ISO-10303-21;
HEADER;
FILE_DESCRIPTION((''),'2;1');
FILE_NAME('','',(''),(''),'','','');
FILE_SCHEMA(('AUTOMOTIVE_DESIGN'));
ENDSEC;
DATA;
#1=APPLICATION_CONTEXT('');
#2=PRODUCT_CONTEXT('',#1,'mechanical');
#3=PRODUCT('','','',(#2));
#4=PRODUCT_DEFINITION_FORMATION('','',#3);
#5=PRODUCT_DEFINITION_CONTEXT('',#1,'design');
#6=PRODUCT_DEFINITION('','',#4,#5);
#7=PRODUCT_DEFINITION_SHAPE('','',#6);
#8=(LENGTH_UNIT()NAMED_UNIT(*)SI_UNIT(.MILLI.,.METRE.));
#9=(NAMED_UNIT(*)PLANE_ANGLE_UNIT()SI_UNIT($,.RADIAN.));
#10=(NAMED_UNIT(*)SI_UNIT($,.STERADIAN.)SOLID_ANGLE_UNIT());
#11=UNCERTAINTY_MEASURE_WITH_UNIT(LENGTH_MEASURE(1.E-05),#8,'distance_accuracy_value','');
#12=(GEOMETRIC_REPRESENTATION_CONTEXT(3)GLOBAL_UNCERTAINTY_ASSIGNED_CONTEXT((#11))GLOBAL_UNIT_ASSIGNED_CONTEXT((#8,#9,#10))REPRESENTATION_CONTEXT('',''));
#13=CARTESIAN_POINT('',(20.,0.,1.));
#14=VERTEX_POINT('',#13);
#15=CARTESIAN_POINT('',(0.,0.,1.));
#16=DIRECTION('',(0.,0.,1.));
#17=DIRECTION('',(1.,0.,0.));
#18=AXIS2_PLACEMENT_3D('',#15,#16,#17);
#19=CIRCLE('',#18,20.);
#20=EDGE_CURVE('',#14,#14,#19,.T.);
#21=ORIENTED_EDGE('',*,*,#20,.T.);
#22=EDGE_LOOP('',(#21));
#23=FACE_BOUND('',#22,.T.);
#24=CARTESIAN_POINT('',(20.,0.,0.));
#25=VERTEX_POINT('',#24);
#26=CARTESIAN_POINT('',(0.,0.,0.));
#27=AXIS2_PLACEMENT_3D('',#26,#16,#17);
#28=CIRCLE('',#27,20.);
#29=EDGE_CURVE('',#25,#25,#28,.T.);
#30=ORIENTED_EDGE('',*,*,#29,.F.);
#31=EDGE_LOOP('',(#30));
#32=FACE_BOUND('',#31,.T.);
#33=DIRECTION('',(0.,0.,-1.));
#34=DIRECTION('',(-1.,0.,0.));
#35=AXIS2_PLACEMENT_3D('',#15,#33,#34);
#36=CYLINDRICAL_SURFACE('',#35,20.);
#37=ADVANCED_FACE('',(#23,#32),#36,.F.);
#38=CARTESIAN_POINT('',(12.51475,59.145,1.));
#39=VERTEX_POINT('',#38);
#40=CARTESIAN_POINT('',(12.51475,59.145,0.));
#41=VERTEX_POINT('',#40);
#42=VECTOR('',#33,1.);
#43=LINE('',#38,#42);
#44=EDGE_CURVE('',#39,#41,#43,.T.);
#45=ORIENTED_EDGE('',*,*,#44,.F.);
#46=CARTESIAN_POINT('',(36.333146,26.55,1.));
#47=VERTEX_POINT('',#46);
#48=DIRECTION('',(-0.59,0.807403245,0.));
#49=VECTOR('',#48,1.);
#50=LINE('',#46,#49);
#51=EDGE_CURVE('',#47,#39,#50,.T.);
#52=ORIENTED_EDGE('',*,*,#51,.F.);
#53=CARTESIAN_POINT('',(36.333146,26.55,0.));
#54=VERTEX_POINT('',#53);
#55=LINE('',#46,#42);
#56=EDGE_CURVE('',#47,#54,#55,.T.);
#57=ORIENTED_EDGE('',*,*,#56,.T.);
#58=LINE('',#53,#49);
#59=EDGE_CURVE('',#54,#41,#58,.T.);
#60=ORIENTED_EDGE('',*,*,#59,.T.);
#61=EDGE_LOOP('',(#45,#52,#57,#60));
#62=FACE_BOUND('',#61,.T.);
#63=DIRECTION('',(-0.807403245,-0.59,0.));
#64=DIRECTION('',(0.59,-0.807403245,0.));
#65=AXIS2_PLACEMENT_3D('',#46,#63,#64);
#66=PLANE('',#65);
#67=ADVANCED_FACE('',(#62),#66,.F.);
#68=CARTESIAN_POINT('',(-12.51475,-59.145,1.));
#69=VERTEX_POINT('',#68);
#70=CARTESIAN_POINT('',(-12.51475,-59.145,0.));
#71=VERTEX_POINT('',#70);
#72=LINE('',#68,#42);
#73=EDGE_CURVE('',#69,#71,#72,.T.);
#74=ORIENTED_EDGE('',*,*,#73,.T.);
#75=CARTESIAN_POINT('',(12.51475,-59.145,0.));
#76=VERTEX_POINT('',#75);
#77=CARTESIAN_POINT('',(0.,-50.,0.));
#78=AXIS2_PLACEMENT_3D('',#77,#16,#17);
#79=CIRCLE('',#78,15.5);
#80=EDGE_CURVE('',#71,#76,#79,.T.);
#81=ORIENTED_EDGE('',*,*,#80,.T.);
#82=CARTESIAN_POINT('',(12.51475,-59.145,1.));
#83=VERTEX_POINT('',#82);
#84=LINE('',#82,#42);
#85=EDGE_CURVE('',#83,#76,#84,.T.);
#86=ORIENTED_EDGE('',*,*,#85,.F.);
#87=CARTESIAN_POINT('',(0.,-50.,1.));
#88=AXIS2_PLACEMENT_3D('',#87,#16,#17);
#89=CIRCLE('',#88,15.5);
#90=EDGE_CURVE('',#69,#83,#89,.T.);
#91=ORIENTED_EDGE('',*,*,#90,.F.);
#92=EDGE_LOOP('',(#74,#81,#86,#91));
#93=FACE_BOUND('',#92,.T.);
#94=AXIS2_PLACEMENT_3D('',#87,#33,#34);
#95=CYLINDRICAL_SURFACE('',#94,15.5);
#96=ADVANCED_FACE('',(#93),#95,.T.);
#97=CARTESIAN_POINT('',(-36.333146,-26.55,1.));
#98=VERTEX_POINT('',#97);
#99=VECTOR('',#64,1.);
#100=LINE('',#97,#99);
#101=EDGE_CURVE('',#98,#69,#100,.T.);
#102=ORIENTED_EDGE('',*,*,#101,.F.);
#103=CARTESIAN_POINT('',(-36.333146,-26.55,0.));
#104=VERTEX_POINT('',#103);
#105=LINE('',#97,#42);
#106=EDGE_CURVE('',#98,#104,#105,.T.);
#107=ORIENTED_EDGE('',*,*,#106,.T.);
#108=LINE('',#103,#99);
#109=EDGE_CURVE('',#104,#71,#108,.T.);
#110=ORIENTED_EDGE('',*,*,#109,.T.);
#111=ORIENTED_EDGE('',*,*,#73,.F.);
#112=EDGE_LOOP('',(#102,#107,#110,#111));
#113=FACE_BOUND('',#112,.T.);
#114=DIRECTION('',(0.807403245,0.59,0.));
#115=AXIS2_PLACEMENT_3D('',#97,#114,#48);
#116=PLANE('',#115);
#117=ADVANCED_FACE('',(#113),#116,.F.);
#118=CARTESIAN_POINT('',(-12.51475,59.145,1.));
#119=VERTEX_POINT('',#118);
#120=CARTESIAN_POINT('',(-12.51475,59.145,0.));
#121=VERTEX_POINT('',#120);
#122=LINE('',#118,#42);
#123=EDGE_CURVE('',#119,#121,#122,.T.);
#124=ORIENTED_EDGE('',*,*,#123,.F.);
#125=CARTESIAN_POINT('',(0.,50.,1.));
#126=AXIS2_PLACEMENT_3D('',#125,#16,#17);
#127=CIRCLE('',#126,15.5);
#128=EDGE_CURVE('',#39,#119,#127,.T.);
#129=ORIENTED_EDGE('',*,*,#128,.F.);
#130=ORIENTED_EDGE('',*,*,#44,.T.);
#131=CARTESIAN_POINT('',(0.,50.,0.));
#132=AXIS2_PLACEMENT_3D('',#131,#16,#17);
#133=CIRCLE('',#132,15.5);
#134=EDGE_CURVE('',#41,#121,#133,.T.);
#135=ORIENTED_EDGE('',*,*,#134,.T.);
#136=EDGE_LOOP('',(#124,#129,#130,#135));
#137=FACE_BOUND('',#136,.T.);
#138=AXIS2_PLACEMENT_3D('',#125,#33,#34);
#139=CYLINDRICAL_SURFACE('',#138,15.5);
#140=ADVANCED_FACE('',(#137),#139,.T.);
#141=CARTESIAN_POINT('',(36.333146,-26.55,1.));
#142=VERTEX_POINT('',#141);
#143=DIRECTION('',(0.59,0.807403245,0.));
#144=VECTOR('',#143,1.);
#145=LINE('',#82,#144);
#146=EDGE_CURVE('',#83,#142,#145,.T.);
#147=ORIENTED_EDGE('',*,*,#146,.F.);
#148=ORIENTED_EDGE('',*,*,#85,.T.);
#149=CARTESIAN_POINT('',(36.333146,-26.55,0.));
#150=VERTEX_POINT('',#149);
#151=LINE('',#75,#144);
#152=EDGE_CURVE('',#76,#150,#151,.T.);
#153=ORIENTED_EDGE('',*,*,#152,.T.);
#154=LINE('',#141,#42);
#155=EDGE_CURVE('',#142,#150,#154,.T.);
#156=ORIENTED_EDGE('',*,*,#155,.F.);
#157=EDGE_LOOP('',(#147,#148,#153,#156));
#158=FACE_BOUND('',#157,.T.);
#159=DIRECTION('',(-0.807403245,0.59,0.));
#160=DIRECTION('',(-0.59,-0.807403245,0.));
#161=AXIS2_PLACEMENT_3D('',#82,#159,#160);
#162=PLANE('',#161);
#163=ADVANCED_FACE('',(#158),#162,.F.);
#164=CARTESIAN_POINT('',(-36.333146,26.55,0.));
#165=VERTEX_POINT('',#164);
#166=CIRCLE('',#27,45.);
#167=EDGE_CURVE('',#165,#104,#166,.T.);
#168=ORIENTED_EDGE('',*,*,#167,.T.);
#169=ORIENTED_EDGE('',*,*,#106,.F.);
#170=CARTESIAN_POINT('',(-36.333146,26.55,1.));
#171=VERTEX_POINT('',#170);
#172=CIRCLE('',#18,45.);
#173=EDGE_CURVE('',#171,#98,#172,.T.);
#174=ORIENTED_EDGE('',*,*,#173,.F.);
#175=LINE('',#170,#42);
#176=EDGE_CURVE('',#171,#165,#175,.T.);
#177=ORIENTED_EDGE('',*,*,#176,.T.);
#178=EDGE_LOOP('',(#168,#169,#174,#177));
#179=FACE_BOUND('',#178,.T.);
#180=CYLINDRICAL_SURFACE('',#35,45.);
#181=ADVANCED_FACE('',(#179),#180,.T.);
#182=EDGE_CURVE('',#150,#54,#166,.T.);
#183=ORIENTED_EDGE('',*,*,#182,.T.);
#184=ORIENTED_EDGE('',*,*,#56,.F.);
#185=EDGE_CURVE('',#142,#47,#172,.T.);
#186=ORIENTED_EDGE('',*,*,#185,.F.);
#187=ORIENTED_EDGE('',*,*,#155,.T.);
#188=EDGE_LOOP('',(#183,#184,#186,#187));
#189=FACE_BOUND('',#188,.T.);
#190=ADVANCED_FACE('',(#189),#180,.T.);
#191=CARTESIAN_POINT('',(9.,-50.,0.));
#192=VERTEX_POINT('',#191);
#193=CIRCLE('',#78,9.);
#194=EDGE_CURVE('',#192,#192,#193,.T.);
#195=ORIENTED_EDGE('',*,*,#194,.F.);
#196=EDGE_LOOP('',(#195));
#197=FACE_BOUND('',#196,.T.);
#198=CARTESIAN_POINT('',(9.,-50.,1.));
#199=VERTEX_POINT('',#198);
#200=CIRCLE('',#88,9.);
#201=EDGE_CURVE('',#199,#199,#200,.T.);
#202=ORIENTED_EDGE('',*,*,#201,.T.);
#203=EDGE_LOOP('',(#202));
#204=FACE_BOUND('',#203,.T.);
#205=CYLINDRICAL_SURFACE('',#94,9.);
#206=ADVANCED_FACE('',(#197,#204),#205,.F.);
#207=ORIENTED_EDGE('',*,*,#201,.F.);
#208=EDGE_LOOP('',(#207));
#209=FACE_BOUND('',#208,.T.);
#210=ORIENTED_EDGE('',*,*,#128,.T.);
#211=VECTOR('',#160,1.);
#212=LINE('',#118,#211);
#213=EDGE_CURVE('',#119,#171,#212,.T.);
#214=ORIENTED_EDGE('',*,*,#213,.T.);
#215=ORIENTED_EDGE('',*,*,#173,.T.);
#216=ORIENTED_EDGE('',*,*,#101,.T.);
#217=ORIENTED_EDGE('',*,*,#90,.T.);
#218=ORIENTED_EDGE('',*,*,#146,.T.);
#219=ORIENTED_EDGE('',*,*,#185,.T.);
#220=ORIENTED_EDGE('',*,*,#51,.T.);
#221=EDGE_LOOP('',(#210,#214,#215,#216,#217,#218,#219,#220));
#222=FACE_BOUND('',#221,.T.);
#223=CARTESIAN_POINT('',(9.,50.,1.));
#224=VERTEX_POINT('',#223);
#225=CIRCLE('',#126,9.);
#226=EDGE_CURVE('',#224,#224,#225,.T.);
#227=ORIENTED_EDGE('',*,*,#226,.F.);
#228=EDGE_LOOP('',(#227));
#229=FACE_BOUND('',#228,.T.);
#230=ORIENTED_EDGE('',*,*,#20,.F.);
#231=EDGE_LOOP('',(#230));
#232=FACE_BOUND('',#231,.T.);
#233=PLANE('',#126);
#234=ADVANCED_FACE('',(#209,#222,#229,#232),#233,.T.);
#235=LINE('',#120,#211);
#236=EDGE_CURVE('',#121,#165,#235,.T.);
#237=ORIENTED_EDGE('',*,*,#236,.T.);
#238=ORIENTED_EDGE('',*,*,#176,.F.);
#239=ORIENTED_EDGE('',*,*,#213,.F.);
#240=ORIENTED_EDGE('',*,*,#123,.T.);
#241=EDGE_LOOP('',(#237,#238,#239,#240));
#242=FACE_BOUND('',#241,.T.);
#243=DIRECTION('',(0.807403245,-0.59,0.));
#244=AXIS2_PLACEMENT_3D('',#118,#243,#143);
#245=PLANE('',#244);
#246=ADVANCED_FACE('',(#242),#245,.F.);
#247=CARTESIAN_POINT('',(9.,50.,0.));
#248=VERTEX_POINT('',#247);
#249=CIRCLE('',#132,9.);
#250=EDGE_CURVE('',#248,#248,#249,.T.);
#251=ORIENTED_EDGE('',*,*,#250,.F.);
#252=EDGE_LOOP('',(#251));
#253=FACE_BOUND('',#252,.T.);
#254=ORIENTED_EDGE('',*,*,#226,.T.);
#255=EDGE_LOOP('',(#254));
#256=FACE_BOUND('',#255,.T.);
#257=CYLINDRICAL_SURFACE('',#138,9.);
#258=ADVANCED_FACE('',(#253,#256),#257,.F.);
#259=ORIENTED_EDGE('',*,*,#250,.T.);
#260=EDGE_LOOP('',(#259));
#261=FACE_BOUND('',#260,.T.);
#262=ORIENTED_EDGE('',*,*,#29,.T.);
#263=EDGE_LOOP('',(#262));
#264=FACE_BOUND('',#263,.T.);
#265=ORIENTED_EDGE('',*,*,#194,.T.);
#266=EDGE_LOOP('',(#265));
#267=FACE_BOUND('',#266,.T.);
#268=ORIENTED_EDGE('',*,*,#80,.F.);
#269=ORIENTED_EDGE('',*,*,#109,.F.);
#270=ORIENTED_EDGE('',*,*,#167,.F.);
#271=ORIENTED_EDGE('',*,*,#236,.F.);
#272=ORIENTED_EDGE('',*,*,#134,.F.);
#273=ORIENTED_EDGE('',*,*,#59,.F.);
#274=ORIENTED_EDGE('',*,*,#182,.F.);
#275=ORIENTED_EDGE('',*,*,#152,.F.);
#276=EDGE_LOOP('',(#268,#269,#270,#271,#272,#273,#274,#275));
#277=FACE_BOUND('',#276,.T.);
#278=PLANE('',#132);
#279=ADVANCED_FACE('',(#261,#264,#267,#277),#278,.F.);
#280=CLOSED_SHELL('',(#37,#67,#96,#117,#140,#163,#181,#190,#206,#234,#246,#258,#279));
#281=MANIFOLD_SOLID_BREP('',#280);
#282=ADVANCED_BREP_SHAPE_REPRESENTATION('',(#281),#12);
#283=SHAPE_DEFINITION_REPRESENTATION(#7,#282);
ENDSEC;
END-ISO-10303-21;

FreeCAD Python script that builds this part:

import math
import FreeCAD as App
import Part
import Sketcher

V = App.Vector
Q = App.Units.Quantity

doc = App.newDocument("Part")
body = doc.addObject("PartDesign::Body", "Body")

# Sketch on XY plane
sketch1 = body.newObject("Sketcher::SketchObject", "Sketch")
sketch1.AttachmentSupport = (doc.getObject("XY_Plane"), [""])
sketch1.MapMode = "FlatFace"
sketch1.addGeometry([
    Part.LineSegment(V(-13, 59, 0), V(-36, 27, 0)),  # 0
    Part.ArcOfCircle(Part.Circle(V(0, 0, 0), V(0, 0, 1), 45), math.radians(144), math.radians(216)),  # 1
    Part.LineSegment(V(-36, -27, 0), V(-13, -59, 0)),  # 2
    Part.ArcOfCircle(Part.Circle(V(0, -50, 0), V(0, 0, 1), 16), math.radians(-144), math.radians(-36)),  # 3
    Part.LineSegment(V(13, -59, 0), V(36, -27, 0)),  # 4
    Part.ArcOfCircle(Part.Circle(V(0, 0, 0), V(0, 0, 1), 45), math.radians(-36), math.radians(36)),  # 5
    Part.LineSegment(V(36, 27, 0), V(13, 59, 0)),  # 6
    Part.ArcOfCircle(Part.Circle(V(0, 50, 0), V(0, 0, 1), 16), math.radians(36), math.radians(144)),  # 7
    Part.Circle(V(0, -50, 0), V(0, 0, 1), 9),  # 8
    Part.Circle(V(0, 0, 0), V(0, 0, 1), 20),  # 9
    Part.Circle(V(0, 50, 0), V(0, 0, 1), 9),  # 10
], False)
sketch1.addConstraint([
    Sketcher.Constraint("Tangent", 0, 2, 1, 1),
    Sketcher.Constraint("Tangent", 1, 2, 2, 1),
    Sketcher.Constraint("Tangent", 2, 2, 3, 1),
    Sketcher.Constraint("Tangent", 3, 2, 4, 1),
    Sketcher.Constraint("Tangent", 4, 2, 5, 1),
    Sketcher.Constraint("Tangent", 5, 2, 6, 1),
    Sketcher.Constraint("Tangent", 6, 2, 7, 1),
    Sketcher.Constraint("Tangent", 7, 2, 0, 1),
    Sketcher.Constraint("Coincident", 1, 3, -1, 1),
    Sketcher.Constraint("Coincident", 5, 3, -1, 1),
    Sketcher.Constraint("Coincident", 9, 3, -1, 1),
    Sketcher.Constraint("Coincident", 8, 3, 3, 3),
    Sketcher.Constraint("Coincident", 10, 3, 7, 3),
    Sketcher.Constraint("Equal", 1, 5),
    Sketcher.Constraint("Equal", 3, 7),
    Sketcher.Constraint("Equal", 8, 10),
    Sketcher.Constraint("Symmetric", 3, 3, 7, 3, -1, 1),
    Sketcher.Constraint("PointOnObject", 3, 3, -2),
    Sketcher.Constraint("Diameter", 8, Q("18 mm")),
    Sketcher.Constraint("Diameter", 9, Q("40 mm")),
    Sketcher.Constraint("Radius", 1, Q("45 mm")),
    Sketcher.Constraint("Radius", 3, Q("15.5 mm")),
    Sketcher.Constraint("DistanceY", 3, 3, -1, 1, Q("50 mm")),
])
pad1 = body.newObject("PartDesign::Pad", "Pad")
pad1.Profile = sketch1
pad1.Length = 1

doc.recompute()
